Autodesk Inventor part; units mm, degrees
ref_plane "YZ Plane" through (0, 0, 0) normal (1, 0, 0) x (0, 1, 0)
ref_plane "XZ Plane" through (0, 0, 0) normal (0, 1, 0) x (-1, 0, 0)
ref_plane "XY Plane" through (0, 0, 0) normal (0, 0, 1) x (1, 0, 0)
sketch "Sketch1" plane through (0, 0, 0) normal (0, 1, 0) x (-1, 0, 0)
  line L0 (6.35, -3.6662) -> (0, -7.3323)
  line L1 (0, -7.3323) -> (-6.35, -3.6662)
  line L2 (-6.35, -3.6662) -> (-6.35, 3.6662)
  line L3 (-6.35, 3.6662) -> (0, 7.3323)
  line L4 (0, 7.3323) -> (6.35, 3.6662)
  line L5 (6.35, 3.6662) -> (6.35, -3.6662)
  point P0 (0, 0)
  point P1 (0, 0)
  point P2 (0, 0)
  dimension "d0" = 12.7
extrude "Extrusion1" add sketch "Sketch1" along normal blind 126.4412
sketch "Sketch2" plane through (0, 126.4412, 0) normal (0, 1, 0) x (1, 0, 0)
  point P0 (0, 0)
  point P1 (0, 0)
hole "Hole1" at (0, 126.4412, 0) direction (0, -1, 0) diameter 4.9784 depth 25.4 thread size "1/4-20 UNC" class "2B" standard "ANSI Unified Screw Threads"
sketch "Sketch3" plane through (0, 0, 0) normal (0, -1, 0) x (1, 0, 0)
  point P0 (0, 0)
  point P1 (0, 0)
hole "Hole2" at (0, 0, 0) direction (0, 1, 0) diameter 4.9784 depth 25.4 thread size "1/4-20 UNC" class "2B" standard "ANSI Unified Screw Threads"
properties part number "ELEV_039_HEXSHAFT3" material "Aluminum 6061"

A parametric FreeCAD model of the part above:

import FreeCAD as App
import Part
import Sketcher

V = App.Vector
Q = App.Units.Quantity

doc = App.newDocument("Part")
params = doc.addObject("Spreadsheet::Sheet", "Params")
for row, (alias, value) in enumerate([
    ("pad1_length", "4.978 in"),
    ("sketch2_diameter", "0.196 in"),
    ("hole_diameter", "0.196 in"),
    ("hole_depth", "1 in"),
    ("sketch3_diameter", "0.196 in"),
    ("hole2_diameter", "0.196 in"),
    ("hole2_depth", "1 in"),
], start=1):
    params.set(f"A{row}", alias)
    params.set(f"B{row}", "=" + value)
    params.setAlias(f"B{row}", alias)

body = doc.addObject("PartDesign::Body", "Body")

# Sketch on XZ plane
sketch1 = body.newObject("Sketcher::SketchObject", "Sketch")
sketch1.AttachmentSupport = (doc.getObject("XZ_Plane"), [""])
sketch1.MapMode = "FlatFace"
sketch1.addGeometry([
    Part.LineSegment(V(0, -7.3323, 0), V(-6.35, -3.6662, 0)),  # 0
    Part.LineSegment(V(-6.35, -3.6662, 0), V(-6.35, 3.6662, 0)),  # 1
    Part.LineSegment(V(-6.35, 3.6662, 0), V(0, 7.3323, 0)),  # 2
    Part.LineSegment(V(0, 7.3323, 0), V(6.35, 3.6662, 0)),  # 3
    Part.LineSegment(V(6.35, 3.6662, 0), V(6.35, -3.6662, 0)),  # 4
    Part.LineSegment(V(6.35, -3.6662, 0), V(0, -7.3323, 0)),  # 5
], False)
sketch1.addConstraint([
    Sketcher.Constraint("Coincident", 0, 2, 1, 1),
    Sketcher.Constraint("Coincident", 1, 2, 2, 1),
    Sketcher.Constraint("Coincident", 2, 2, 3, 1),
    Sketcher.Constraint("Coincident", 3, 2, 4, 1),
    Sketcher.Constraint("Coincident", 4, 2, 5, 1),
    Sketcher.Constraint("Coincident", 5, 2, 0, 1),
    Sketcher.Constraint("Vertical", 1),
    Sketcher.Constraint("Vertical", 4),
    Sketcher.Constraint("Symmetric", 0, 2, 3, 2, -1, 1),
    Sketcher.Constraint("Symmetric", 2, 2, 5, 2, -1, 1),
    Sketcher.Constraint("PointOnObject", 2, 2, -2),
    Sketcher.Constraint("Parallel", 2, 5),
    Sketcher.Constraint("Horizontal", 1, 2, 3, 2),
    Sketcher.Constraint("DistanceX", 1, 2, 3, 2, Q("0.5 in")),
    Sketcher.Constraint("Angle", 0, Q("150.0005 deg")),
    Sketcher.Constraint("DistanceY", 0, 2, 2, 2, Q("0.433 in")),
])
pad1 = body.newObject("PartDesign::Pad", "Pad")
pad1.Profile = sketch1
pad1.setExpression("Length", "Params.pad1_length")
pad1.Reversed = True

# Sketch on XZ plane
sketch2 = body.newObject("Sketcher::SketchObject", "Sketch001")
sketch2.AttachmentSupport = (doc.getObject("XZ_Plane"), [""])
sketch2.MapMode = "FlatFace"
sketch2.AttachmentOffset = App.Placement(V(0, 0, -4.978 * 25.4), App.Rotation())
sketch2.addGeometry(Part.Circle(V(0, 0, 0), V(0, 0, 1), 2.4892), False)
sketch2.addConstraint([
    Sketcher.Constraint("Coincident", 0, 3, -1, 1),
    Sketcher.Constraint("Diameter", 0, Q("0.196 in")),
])
sketch2.setExpression("Constraints[1]", "Params.sketch2_diameter")
doc.recompute()
hole = body.newObject("PartDesign::Hole", "Hole")
hole.Profile = sketch2
hole.ThreadType = "None"
hole.setExpression("Diameter", "Params.hole_diameter")
hole.DepthType = "Dimension"
hole.setExpression("Depth", "Params.hole_depth")
hole.DrillPoint = "Flat"
hole.Reversed = True

# Sketch on XZ plane
sketch3 = body.newObject("Sketcher::SketchObject", "Sketch002")
sketch3.AttachmentSupport = (doc.getObject("XZ_Plane"), [""])
sketch3.MapMode = "FlatFace"
sketch3.addGeometry(Part.Circle(V(0, 0, 0), V(0, 0, 1), 2.4892), False)
sketch3.addConstraint([
    Sketcher.Constraint("Coincident", 0, 3, -1, 1),
    Sketcher.Constraint("Diameter", 0, Q("0.196 in")),
])
sketch3.setExpression("Constraints[1]", "Params.sketch3_diameter")
doc.recompute()
hole2 = body.newObject("PartDesign::Hole", "Hole001")
hole2.Profile = sketch3
hole2.ThreadType = "None"
hole2.setExpression("Diameter", "Params.hole2_diameter")
hole2.DepthType = "Dimension"
hole2.setExpression("Depth", "Params.hole2_depth")
hole2.DrillPoint = "Flat"

doc.recompute()
